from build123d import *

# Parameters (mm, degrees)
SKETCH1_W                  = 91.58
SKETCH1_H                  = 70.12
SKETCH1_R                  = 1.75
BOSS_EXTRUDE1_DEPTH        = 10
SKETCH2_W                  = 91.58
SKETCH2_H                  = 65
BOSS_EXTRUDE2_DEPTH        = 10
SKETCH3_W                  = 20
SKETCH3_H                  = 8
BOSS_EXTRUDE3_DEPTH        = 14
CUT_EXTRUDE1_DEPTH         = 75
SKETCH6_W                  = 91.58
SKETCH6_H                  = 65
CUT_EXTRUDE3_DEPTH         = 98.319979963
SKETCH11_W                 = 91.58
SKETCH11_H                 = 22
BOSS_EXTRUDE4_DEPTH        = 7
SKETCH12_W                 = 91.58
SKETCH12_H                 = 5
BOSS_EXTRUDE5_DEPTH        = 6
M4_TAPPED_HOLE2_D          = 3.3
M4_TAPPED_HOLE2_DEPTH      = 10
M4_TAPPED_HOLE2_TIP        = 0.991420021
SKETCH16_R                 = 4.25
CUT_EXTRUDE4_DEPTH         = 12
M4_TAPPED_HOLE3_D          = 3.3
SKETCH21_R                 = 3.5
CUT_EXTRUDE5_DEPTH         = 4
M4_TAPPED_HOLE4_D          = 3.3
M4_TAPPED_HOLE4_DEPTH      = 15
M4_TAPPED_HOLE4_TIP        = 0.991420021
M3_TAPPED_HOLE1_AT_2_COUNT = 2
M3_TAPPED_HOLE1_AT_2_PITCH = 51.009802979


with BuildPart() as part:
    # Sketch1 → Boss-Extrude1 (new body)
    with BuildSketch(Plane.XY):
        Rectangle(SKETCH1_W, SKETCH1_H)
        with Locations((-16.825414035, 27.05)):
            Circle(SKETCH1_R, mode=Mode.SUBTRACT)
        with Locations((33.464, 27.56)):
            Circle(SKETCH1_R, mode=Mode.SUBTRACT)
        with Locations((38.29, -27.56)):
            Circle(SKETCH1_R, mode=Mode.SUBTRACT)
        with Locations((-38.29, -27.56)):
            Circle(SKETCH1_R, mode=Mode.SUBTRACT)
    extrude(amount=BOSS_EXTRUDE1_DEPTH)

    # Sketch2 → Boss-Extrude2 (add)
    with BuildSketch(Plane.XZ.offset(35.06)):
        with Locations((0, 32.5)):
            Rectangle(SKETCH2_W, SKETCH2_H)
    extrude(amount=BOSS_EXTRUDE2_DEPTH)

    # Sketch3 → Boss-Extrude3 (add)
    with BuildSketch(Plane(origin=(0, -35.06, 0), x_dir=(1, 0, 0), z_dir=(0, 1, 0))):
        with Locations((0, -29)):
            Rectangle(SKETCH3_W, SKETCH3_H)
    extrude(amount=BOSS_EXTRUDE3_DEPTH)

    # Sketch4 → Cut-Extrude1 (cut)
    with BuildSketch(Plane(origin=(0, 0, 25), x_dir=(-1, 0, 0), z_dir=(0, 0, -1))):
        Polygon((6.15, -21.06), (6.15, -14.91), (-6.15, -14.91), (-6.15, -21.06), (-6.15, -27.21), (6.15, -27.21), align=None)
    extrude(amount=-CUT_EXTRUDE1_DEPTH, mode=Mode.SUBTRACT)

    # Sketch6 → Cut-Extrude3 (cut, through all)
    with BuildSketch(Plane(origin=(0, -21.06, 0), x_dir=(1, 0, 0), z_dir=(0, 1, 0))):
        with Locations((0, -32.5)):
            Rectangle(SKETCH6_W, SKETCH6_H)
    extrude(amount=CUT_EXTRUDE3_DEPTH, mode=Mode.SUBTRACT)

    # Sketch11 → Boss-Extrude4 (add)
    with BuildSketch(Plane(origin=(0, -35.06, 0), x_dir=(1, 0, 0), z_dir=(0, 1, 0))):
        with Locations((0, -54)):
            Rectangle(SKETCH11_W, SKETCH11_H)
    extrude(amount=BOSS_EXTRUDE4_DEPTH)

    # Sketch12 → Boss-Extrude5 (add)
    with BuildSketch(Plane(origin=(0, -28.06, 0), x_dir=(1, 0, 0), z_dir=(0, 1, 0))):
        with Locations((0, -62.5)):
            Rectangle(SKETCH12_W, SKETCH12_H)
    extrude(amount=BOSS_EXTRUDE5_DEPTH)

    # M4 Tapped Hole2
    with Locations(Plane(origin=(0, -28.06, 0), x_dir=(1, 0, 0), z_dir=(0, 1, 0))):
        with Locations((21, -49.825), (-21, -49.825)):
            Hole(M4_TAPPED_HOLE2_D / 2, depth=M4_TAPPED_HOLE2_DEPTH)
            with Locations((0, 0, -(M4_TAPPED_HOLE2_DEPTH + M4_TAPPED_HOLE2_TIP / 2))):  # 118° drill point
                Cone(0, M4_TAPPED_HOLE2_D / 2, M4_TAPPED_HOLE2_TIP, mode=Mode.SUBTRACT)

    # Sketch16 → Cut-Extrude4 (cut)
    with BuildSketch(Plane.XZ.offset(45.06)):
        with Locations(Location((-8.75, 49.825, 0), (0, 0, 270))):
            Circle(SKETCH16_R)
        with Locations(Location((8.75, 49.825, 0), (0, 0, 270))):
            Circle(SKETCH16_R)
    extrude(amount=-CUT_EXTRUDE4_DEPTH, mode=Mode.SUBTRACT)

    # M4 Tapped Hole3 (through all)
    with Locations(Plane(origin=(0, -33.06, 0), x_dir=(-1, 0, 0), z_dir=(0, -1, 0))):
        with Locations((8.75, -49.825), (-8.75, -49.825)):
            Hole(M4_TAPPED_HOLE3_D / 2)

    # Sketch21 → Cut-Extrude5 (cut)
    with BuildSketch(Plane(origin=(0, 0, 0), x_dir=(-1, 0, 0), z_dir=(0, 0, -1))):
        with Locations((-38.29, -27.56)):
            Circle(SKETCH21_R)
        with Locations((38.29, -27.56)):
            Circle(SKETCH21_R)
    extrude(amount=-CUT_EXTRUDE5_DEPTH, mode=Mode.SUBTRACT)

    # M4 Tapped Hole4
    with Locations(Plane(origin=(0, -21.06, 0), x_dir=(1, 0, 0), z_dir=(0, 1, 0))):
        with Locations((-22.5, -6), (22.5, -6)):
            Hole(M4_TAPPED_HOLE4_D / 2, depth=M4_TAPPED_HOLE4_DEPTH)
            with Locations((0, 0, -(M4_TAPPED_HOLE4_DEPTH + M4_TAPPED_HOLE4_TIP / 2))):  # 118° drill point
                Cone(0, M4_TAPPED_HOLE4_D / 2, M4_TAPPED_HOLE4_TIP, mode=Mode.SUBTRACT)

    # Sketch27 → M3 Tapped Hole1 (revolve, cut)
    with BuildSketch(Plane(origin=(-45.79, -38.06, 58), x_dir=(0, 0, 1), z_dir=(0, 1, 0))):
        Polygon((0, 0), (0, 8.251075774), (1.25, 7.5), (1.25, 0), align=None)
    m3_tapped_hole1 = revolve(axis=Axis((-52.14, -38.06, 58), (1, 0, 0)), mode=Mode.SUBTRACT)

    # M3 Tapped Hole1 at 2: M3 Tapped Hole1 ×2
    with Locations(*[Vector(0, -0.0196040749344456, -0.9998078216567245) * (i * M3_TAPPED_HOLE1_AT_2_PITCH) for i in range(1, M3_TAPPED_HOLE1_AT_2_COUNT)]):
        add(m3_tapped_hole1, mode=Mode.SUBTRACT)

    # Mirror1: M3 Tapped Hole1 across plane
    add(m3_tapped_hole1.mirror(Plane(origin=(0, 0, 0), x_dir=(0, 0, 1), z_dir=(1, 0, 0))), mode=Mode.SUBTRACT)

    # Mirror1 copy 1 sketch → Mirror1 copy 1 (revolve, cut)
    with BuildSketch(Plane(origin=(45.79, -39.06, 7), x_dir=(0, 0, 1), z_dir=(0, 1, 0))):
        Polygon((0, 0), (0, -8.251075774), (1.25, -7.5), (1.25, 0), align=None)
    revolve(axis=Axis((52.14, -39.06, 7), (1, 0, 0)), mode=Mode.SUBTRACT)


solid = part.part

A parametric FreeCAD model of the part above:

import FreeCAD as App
import Part
import Sketcher
from FreeCAD import Vector
Q = App.Units.Quantity


def add_polygon(sketch, points):
    """Adds a closed chain of lines whose ends are joined by coincident constraints."""
    first, n = sketch.GeometryCount, len(points)
    for a, b in zip(points, points[1:] + points[:1]):
        sketch.addGeometry(Part.LineSegment(App.Vector(*a, 0), App.Vector(*b, 0)), False)
    for i in range(n):
        sketch.addConstraint(Sketcher.Constraint("Coincident", first + i, 2, first + (i + 1) % n, 1))

doc = App.newDocument("Part")
body = doc.addObject("PartDesign::Body", "Body")

sketch1 = body.newObject("Sketcher::SketchObject", "Sketch")
sketch1.AttachmentSupport = (doc.getObject("XY_Plane"), [""])
sketch1.MapMode = "FlatFace"
add_polygon(sketch1, [(-45.8, 35.1), (-45.8, -35.1), (45.8, -35.1), (45.8, 35.1)])
sketch1.addGeometry(Part.Circle(Vector(-38.3, -27.6, 0), Vector(0, 0, 1), 1.8), False)
sketch1.addGeometry(Part.Circle(Vector(38.3, -27.6, 0), Vector(0, 0, 1), 1.8), False)
sketch1.addGeometry(Part.Circle(Vector(-16.8, 27.1, 0), Vector(0, 0, 1), 1.8), False)
sketch1.addGeometry(Part.Circle(Vector(33.5, 27.6, 0), Vector(0, 0, 1), 1.8), False)
sketch1.addConstraint([
    Sketcher.Constraint("Vertical", 0),
    Sketcher.Constraint("Horizontal", 1),
    Sketcher.Constraint("Vertical", 2),
    Sketcher.Constraint("Horizontal", 3),
    Sketcher.Constraint("Equal", 4, 5),
    Sketcher.Constraint("Equal", 5, 6),
    Sketcher.Constraint("Equal", 6, 7),
    Sketcher.Constraint("Symmetric", 0, 2, 2, 2, -1, 1),
    Sketcher.Constraint("Symmetric", 4, 3, 5, 3, -2),
    Sketcher.Constraint("Diameter", 4, Q("3.5 mm")),
    Sketcher.Constraint("DistanceX", 1, 1, 1, 2, Q("91.58 mm")),
    Sketcher.Constraint("DistanceY", 0, 2, 0, 1, Q("70.12 mm")),
    Sketcher.Constraint("DistanceX", 0, 2, 4, 3, Q("7.5 mm")),
    Sketcher.Constraint("DistanceY", 0, 2, 4, 3, Q("7.5 mm")),
    Sketcher.Constraint("DistanceY", 7, 3, 2, 2, Q("7.5 mm")),
    Sketcher.Constraint("DistanceY", -1, 1, 6, 3, Q("27.05 mm")),
    Sketcher.Constraint("DistanceX", -1, 1, 7, 3, Q("33.464 mm")),
    Sketcher.Constraint("DistanceX", 6, 3, -1, 1, Q("16.825414 mm")),
])
pad1 = body.newObject("PartDesign::Pad", "Pad")
pad1.Profile = sketch1
pad1.Length = 10

sketch2 = body.newObject("Sketcher::SketchObject", "Sketch001")
sketch2.AttachmentSupport = (doc.getObject("XZ_Plane"), [""])
sketch2.MapMode = "FlatFace"
sketch2.AttachmentOffset = App.Placement(Vector(0, 0, 35.06), App.Rotation())
add_polygon(sketch2, [(-46, 65), (-46, 0), (46, 0), (46, 65)])
sketch2.addConstraint([
    Sketcher.Constraint("Vertical", 0),
    Sketcher.Constraint("Horizontal", 1),
    Sketcher.Constraint("Vertical", 2),
    Sketcher.Constraint("Horizontal", 3),
    Sketcher.Constraint("Symmetric", 0, 2, 1, 2, -1, 1),
    Sketcher.Constraint("DistanceY", 0, 2, 0, 1, Q("65 mm")),
    Sketcher.Constraint("DistanceX", 1, 1, 1, 2, Q("91.58 mm")),
])
pad2 = body.newObject("PartDesign::Pad", "Pad001")
pad2.Profile = sketch2
pad2.Length = 10

sketch3 = body.newObject("Sketcher::SketchObject", "Sketch002")
sketch3.AttachmentSupport = (doc.getObject("XZ_Plane"), [""])
sketch3.MapMode = "FlatFace"
sketch3.AttachmentOffset = App.Placement(Vector(0, 0, 35.06), App.Rotation())
add_polygon(sketch3, [(-10, 25), (-10, 33), (10, 33), (10, 25)])
sketch3.addConstraint([
    Sketcher.Constraint("Vertical", 0),
    Sketcher.Constraint("Horizontal", 1),
    Sketcher.Constraint("Vertical", 2),
    Sketcher.Constraint("Horizontal", 3),
    Sketcher.Constraint("DistanceX", 1, 1, 1, 2, Q("20 mm")),
    Sketcher.Constraint("DistanceY", 0, 1, 0, 2, Q("8 mm")),
    Sketcher.Constraint("DistanceX", 0, 2, -1, 1, Q("10 mm")),
    Sketcher.Constraint("DistanceY", -1, 1, 0, 2, Q("33 mm")),
])
pad3 = body.newObject("PartDesign::Pad", "Pad002")
pad3.Profile = sketch3
pad3.Length = 14
pad3.Reversed = True

sketch4 = body.newObject("Sketcher::SketchObject", "Sketch003")
sketch4.AttachmentSupport = (doc.getObject("XY_Plane"), [""])
sketch4.MapMode = "FlatFace"
sketch4.AttachmentOffset = App.Placement(Vector(0, 0, 25), App.Rotation())
add_polygon(sketch4, [(-6, -15), (6, -15), (6, -27), (-6, -27)])
sketch4.addConstraint([
    Sketcher.Constraint("Horizontal", 0),
    Sketcher.Constraint("Vertical", 1),
    Sketcher.Constraint("Horizontal", 2),
    Sketcher.Constraint("Vertical", 3),
    Sketcher.Constraint("Equal", 2, 1),
    Sketcher.Constraint("DistanceX", 0, 1, 0, 2, Q("12.3 mm")),
    Sketcher.Constraint("DistanceX", -1, 1, 0, 2, Q("6.15 mm")),
    Sketcher.Constraint("DistanceY", 0, 2, -1, 1, Q("14.91 mm")),
])
pocket1 = body.newObject("PartDesign::Pocket", "Pocket")
pocket1.Profile = sketch4
pocket1.Length = 75
pocket1.Reversed = True

sketch5 = body.newObject("Sketcher::SketchObject", "Sketch004")
sketch5.AttachmentSupport = (doc.getObject("XZ_Plane"), [""])
sketch5.MapMode = "FlatFace"
sketch5.AttachmentOffset = App.Placement(Vector(0, 0, 21.06), App.Rotation())
add_polygon(sketch5, [(-46, 0), (-46, 65), (46, 65), (46, 0)])
sketch5.addConstraint([
    Sketcher.Constraint("Vertical", 0),
    Sketcher.Constraint("Horizontal", 1),
    Sketcher.Constraint("Vertical", 2),
    Sketcher.Constraint("Horizontal", 3),
    Sketcher.Constraint("Symmetric", 2, 2, 3, 2, -1, 1),
    Sketcher.Constraint("DistanceY", 0, 1, 0, 2, Q("65 mm")),
    Sketcher.Constraint("DistanceX", 1, 1, 1, 2, Q("91.58 mm")),
])
pocket2 = body.newObject("PartDesign::Pocket", "Pocket001")
pocket2.Profile = sketch5
pocket2.Type = "ThroughAll"

sketch6 = body.newObject("Sketcher::SketchObject", "Sketch005")
sketch6.AttachmentSupport = (doc.getObject("XZ_Plane"), [""])
sketch6.MapMode = "FlatFace"
sketch6.AttachmentOffset = App.Placement(Vector(0, 0, 35.06), App.Rotation())
add_polygon(sketch6, [(-46, 43), (-46, 65), (46, 65), (46, 43)])
sketch6.addConstraint([
    Sketcher.Constraint("Vertical", 0),
    Sketcher.Constraint("Horizontal", 1),
    Sketcher.Constraint("Vertical", 2),
    Sketcher.Constraint("Horizontal", 3),
    Sketcher.Constraint("DistanceY", 0, 1, 0, 2, Q("22 mm")),
    Sketcher.Constraint("DistanceY", -1, 1, 0, 2, Q("65 mm")),
    Sketcher.Constraint("DistanceX", 1, 1, 1, 2, Q("91.58 mm")),
    Sketcher.Constraint("DistanceX", 0, 2, -1, 1, Q("45.79 mm")),
])
pad4 = body.newObject("PartDesign::Pad", "Pad003")
pad4.Profile = sketch6
pad4.Length = 7
pad4.Reversed = True

sketch7 = body.newObject("Sketcher::SketchObject", "Sketch006")
sketch7.AttachmentSupport = (doc.getObject("XZ_Plane"), [""])
sketch7.MapMode = "FlatFace"
sketch7.AttachmentOffset = App.Placement(Vector(0, 0, 28.06), App.Rotation())
add_polygon(sketch7, [(-46, 60), (-46, 65), (46, 65), (46, 60)])
sketch7.addConstraint([
    Sketcher.Constraint("Vertical", 0),
    Sketcher.Constraint("Horizontal", 1),
    Sketcher.Constraint("Vertical", 2),
    Sketcher.Constraint("Horizontal", 3),
    Sketcher.Constraint("DistanceY", 0, 1, 0, 2, Q("5 mm")),
    Sketcher.Constraint("DistanceY", -1, 1, 0, 2, Q("65 mm")),
    Sketcher.Constraint("DistanceX", 1, 1, 1, 2, Q("91.58 mm")),
    Sketcher.Constraint("DistanceX", 0, 2, -1, 1, Q("45.79 mm")),
])
pad5 = body.newObject("PartDesign::Pad", "Pad004")
pad5.Profile = sketch7
pad5.Length = 6
pad5.Reversed = True

sketch8 = body.newObject("Sketcher::SketchObject", "Sketch007")
sketch8.AttachmentSupport = (doc.getObject("XZ_Plane"), [""])
sketch8.MapMode = "FlatFace"
sketch8.AttachmentOffset = App.Placement(Vector(0, 0, 28.06), App.Rotation())
sketch8.addGeometry([
    Part.Circle(Vector(21, 49.8, 0), Vector(0, 0, 1), 1.6),
    Part.Circle(Vector(-21, 49.8, 0), Vector(0, 0, 1), 1.6),
], False)
sketch8.addConstraint([
    Sketcher.Constraint("Equal", 0, 1),
    Sketcher.Constraint("Symmetric", 0, 3, 1, 3, -2),
    Sketcher.Constraint("Diameter", 0, Q("3.3 mm")),
    Sketcher.Constraint("DistanceX", -1, 1, 0, 3, Q("21 mm")),
    Sketcher.Constraint("DistanceY", -1, 1, 0, 3, Q("49.825 mm")),
])
doc.recompute()
hole = body.newObject("PartDesign::Hole", "Hole")
hole.Profile = sketch8
hole.ThreadType = "None"
hole.Diameter = 3.3
hole.DepthType = "Dimension"
hole.Depth = 10
hole.DrillPoint = "Angled"
hole.DrillPointAngle = 118
hole.Reversed = True

sketch9 = body.newObject("Sketcher::SketchObject", "Sketch008")
sketch9.AttachmentSupport = (doc.getObject("XZ_Plane"), [""])
sketch9.MapMode = "FlatFace"
sketch9.AttachmentOffset = App.Placement(Vector(0, 0, 45.06), App.Rotation())
sketch9.addGeometry([
    Part.Circle(Vector(-8.8, 49.8, 0), Vector(0, 0, 1), 4.2),
    Part.Circle(Vector(8.8, 49.8, 0), Vector(0, 0, 1), 4.2),
], False)
sketch9.addConstraint([
    Sketcher.Constraint("Equal", 0, 1),
    Sketcher.Constraint("Symmetric", 0, 3, 1, 3, -2),
    Sketcher.Constraint("Diameter", 0, Q("8.5 mm")),
    Sketcher.Constraint("DistanceX", 0, 3, 1, 3, Q("17.5 mm")),
    Sketcher.Constraint("DistanceY", -1, 1, 0, 3, Q("49.825 mm")),
])
pocket3 = body.newObject("PartDesign::Pocket", "Pocket002")
pocket3.Profile = sketch9
pocket3.Length = 12

sketch10 = body.newObject("Sketcher::SketchObject", "Sketch009")
sketch10.AttachmentSupport = (doc.getObject("XZ_Plane"), [""])
sketch10.MapMode = "FlatFace"
sketch10.AttachmentOffset = App.Placement(Vector(0, 0, 33.06), App.Rotation())
sketch10.addGeometry([
    Part.Circle(Vector(-8.8, 49.8, 0), Vector(0, 0, 1), 1.6),
    Part.Circle(Vector(8.8, 49.8, 0), Vector(0, 0, 1), 1.6),
], False)
sketch10.addConstraint([
    Sketcher.Constraint("Equal", 0, 1),
    Sketcher.Constraint("Symmetric", 0, 3, 1, 3, -2),
    Sketcher.Constraint("Diameter", 0, Q("3.3 mm")),
    Sketcher.Constraint("DistanceX", 0, 3, 1, 3, Q("17.5 mm")),
    Sketcher.Constraint("DistanceY", -1, 1, 0, 3, Q("49.825 mm")),
])
doc.recompute()
hole2 = body.newObject("PartDesign::Hole", "Hole001")
hole2.Profile = sketch10
hole2.ThreadType = "None"
hole2.Diameter = 3.3
hole2.DepthType = "ThroughAll"

sketch11 = body.newObject("Sketcher::SketchObject", "Sketch010")
sketch11.AttachmentSupport = (doc.getObject("XY_Plane"), [""])
sketch11.MapMode = "FlatFace"
sketch11.addGeometry([
    Part.Circle(Vector(38.3, -27.6, 0), Vector(0, 0, 1), 3.5),
    Part.Circle(Vector(-38.3, -27.6, 0), Vector(0, 0, 1), 3.5),
], False)
sketch11.addConstraint([
    Sketcher.Constraint("Equal", 0, 1),
    Sketcher.Constraint("Symmetric", 0, 3, 1, 3, -2),
    Sketcher.Constraint("Diameter", 0, Q("7 mm")),
    Sketcher.Constraint("DistanceX", -1, 1, 0, 3, Q("38.29 mm")),
    Sketcher.Constraint("DistanceY", 0, 3, -1, 1, Q("27.56 mm")),
])
pocket4 = body.newObject("PartDesign::Pocket", "Pocket003")
pocket4.Profile = sketch11
pocket4.Length = 4
pocket4.Reversed = True

sketch12 = body.newObject("Sketcher::SketchObject", "Sketch011")
sketch12.AttachmentSupport = (doc.getObject("XZ_Plane"), [""])
sketch12.MapMode = "FlatFace"
sketch12.AttachmentOffset = App.Placement(Vector(0, 0, 21.06), App.Rotation())
sketch12.addGeometry([
    Part.Circle(Vector(-22.5, 6, 0), Vector(0, 0, 1), 1.6),
    Part.Circle(Vector(22.5, 6, 0), Vector(0, 0, 1), 1.6),
], False)
sketch12.addConstraint([
    Sketcher.Constraint("Equal", 0, 1),
    Sketcher.Constraint("Symmetric", 0, 3, 1, 3, -2),
    Sketcher.Constraint("Diameter", 0, Q("3.3 mm")),
    Sketcher.Constraint("DistanceY", -1, 1, 0, 3, Q("6 mm")),
    Sketcher.Constraint("DistanceX", 0, 3, 1, 3, Q("45 mm")),
])
doc.recompute()
hole3 = body.newObject("PartDesign::Hole", "Hole002")
hole3.Profile = sketch12
hole3.ThreadType = "None"
hole3.Diameter = 3.3
hole3.DepthType = "Dimension"
hole3.Depth = 15
hole3.DrillPoint = "Angled"
hole3.DrillPointAngle = 118
hole3.Reversed = True

sketch13 = body.newObject("Sketcher::SketchObject", "Sketch012")
sketch13.AttachmentSupport = (doc.getObject("XZ_Plane"), [""])
sketch13.MapMode = "FlatFace"
sketch13.AttachmentOffset = App.Placement(Vector(0, 0, 38.06), App.Rotation())
add_polygon(sketch13, [(-37.5, 58), (-45.8, 58), (-45.8, 59.2), (-38.3, 59.2)])
sketch13.addGeometry(Part.LineSegment(Vector(-45.8, 58, 0), Vector(-37.5, 58, 0)), True)
sketch13.addConstraint([
    Sketcher.Constraint("Horizontal", 0),
    Sketcher.Constraint("Vertical", 1),
    Sketcher.Constraint("Horizontal", 2),
    Sketcher.Constraint("Horizontal", 4),
    Sketcher.Constraint("Coincident", 4, 1, 0, 2),
    Sketcher.Constraint("Equal", 0, 4),
    Sketcher.Constraint("Angle", 3, Q("-59 deg")),
    Sketcher.Constraint("DistanceX", 2, 1, 2, 2, Q("7.5 mm")),
    Sketcher.Constraint("DistanceY", -1, 1, 0, 2, Q("58 mm")),
    Sketcher.Constraint("DistanceY", 1, 1, 1, 2, Q("1.25 mm")),
    Sketcher.Constraint("DistanceX", 0, 2, -1, 1, Q("45.79 mm")),
])
groove = body.newObject("PartDesign::Groove", "Groove")
groove.Profile = sketch13
groove.ReferenceAxis = (sketch13, ["Axis0"])
groove.Angle = 360
doc.recompute()

datumline = body.newObject("PartDesign::Line", "DatumLine")
datumline.Placement = App.Placement(Vector(0, 0, 0), App.Rotation(Vector(0, 0, 1), Vector(0, -0.019604075, -0.999807822)))
linearpattern = body.newObject("PartDesign::LinearPattern", "LinearPattern")
linearpattern.Originals = [groove]
linearpattern.Direction = (datumline, [""])
linearpattern.Mode = "offset"
linearpattern.Offset = 51.009803
linearpattern.Occurrences = 2
body.Tip = linearpattern
doc.recompute()

mirrored = body.newObject("PartDesign::Mirrored", "Mirrored")
mirrored.Originals = [groove]
mirrored.MirrorPlane = (doc.getObject("YZ_Plane"), [""])
body.Tip = mirrored

sketch14 = body.newObject("Sketcher::SketchObject", "Sketch013")
sketch14.AttachmentSupport = (doc.getObject("XZ_Plane"), [""])
sketch14.MapMode = "FlatFace"
sketch14.AttachmentOffset = App.Placement(Vector(0, 0, 39.06), App.Rotation())
add_polygon(sketch14, [(45.8, 7), (37.5, 7), (38.3, 8.2), (45.8, 8.2)])
sketch14.addGeometry(Part.LineSegment(Vector(37.5, 7, 0), Vector(45.8, 7, 0)), True)
sketch14.addConstraint([
    Sketcher.Constraint("Horizontal", 0),
    Sketcher.Constraint("Horizontal", 2),
    Sketcher.Constraint("Vertical", 3),
    Sketcher.Constraint("Horizontal", 4),
    Sketcher.Constraint("Coincident", 4, 1, 0, 2),
    Sketcher.Constraint("Vertical", 2, 2, 4, 2),
    Sketcher.Constraint("Angle", 1, Q("59 deg")),
    Sketcher.Constraint("DistanceX", 2, 1, 2, 2, Q("7.5 mm")),
    Sketcher.Constraint("DistanceY", -1, 1, 0, 2, Q("7 mm")),
    Sketcher.Constraint("DistanceY", 3, 2, 3, 1, Q("1.25 mm")),
    Sketcher.Constraint("DistanceX", -1, 1, 1, 2, Q("38.29 mm")),
])
groove2 = body.newObject("PartDesign::Groove", "Groove001")
groove2.Profile = sketch14
groove2.ReferenceAxis = (sketch14, ["Axis0"])
groove2.Angle = 360

doc.recompute()
